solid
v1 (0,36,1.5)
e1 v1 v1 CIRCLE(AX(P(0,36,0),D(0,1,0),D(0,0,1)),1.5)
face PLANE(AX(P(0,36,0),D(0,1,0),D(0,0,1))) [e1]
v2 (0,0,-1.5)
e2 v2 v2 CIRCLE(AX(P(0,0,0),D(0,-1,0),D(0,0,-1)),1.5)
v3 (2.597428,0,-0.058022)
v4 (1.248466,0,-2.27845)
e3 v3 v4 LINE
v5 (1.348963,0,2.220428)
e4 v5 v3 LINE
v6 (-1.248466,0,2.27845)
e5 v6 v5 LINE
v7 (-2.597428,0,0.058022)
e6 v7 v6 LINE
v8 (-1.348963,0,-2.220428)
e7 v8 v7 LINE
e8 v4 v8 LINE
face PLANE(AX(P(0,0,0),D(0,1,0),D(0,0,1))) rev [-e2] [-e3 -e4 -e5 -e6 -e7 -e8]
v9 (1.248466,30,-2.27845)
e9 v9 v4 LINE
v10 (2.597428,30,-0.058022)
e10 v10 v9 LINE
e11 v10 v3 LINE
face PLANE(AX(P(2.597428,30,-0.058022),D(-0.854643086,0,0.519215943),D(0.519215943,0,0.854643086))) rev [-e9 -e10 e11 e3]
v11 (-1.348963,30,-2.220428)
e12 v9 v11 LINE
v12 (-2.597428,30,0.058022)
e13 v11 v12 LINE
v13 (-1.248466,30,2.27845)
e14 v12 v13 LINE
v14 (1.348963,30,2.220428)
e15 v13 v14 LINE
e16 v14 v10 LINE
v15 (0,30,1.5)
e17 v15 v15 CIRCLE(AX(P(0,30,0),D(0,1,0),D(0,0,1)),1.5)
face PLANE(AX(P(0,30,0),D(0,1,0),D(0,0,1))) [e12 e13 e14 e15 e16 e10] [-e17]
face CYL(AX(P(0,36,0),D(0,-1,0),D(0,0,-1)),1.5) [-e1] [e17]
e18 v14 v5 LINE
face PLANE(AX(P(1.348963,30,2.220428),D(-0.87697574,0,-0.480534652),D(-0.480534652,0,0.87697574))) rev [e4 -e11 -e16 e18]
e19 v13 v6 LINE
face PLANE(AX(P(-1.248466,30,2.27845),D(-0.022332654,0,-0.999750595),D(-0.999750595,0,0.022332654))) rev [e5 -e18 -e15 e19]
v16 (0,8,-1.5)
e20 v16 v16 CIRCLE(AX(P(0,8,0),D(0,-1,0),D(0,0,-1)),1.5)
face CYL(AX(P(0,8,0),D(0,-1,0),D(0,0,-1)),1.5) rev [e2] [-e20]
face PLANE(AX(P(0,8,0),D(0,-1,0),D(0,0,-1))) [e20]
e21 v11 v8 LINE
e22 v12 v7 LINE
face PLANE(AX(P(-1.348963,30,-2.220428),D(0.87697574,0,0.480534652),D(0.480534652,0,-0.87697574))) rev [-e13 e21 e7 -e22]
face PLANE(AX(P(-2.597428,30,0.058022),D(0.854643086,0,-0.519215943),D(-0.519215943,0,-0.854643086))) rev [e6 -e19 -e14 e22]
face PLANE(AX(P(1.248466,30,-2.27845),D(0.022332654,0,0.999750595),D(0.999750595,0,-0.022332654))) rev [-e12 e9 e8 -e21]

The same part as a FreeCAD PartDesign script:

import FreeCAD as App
import Part
import Sketcher

V = App.Vector

doc = App.newDocument("Part")
body = doc.addObject("PartDesign::Body", "Body")

# Sketch on XZ plane
sketch1 = body.newObject("Sketcher::SketchObject", "Sketch")
sketch1.AttachmentSupport = (doc.getObject("XZ_Plane"), [""])
sketch1.MapMode = "FlatFace"
sketch1.addGeometry([
    Part.LineSegment(V(1.248466, -2.27845, 0), V(-1.348963, -2.220428, 0)),  # 0
    Part.LineSegment(V(-1.348963, -2.220428, 0), V(-2.597428, 0.058022, 0)),  # 1
    Part.LineSegment(V(-2.597428, 0.058022, 0), V(-1.248466, 2.27845, 0)),  # 2
    Part.LineSegment(V(-1.248466, 2.27845, 0), V(1.348963, 2.220428, 0)),  # 3
    Part.LineSegment(V(1.348963, 2.220428, 0), V(2.597428, -0.058022, 0)),  # 4
    Part.LineSegment(V(2.597428, -0.058022, 0), V(1.248466, -2.27845, 0)),  # 5
    Part.Circle(V(0, 0, 0), V(0, 0, 1), 1.5),  # 6
], False)
sketch1.addConstraint([
    Sketcher.Constraint("Coincident", 0, 2, 1, 1),
    Sketcher.Constraint("Coincident", 1, 2, 2, 1),
    Sketcher.Constraint("Coincident", 2, 2, 3, 1),
    Sketcher.Constraint("Coincident", 3, 2, 4, 1),
    Sketcher.Constraint("Coincident", 4, 2, 5, 1),
    Sketcher.Constraint("Coincident", 5, 2, 0, 1),
    Sketcher.Constraint("Coincident", 6, 3, -1, 1),
    Sketcher.Constraint("Symmetric", 0, 2, 3, 2, -1, 1),
    Sketcher.Constraint("Symmetric", 1, 2, 4, 2, -1, 1),
    Sketcher.Constraint("Symmetric", 2, 2, 5, 2, -1, 1),
    Sketcher.Constraint("Equal", 0, 1),
    Sketcher.Constraint("Equal", 1, 2),
    Sketcher.Constraint("Diameter", 6, 3.0),
    Sketcher.Constraint("DistanceX", 1, 2, -1, 1, 2.597428),
    Sketcher.Constraint("DistanceY", -1, 1, 1, 2, 0.058022),
    Sketcher.Constraint("DistanceY", -1, 1, 2, 2, 2.27845),
    Sketcher.Constraint("DistanceY", 0, 2, 1, 2, 2.27845),
])
pad1 = body.newObject("PartDesign::Pad", "Pad")
pad1.Profile = sketch1
pad1.Length = 30
pad1.Reversed = True

# Sketch on XZ plane
sketch2 = body.newObject("Sketcher::SketchObject", "Sketch001")
sketch2.AttachmentSupport = (doc.getObject("XZ_Plane"), [""])
sketch2.MapMode = "FlatFace"
sketch2.addGeometry(Part.Circle(V(0, 0, 0), V(0, 0, 1), 1.5), False)
sketch2.addConstraint([
    Sketcher.Constraint("Coincident", 0, 3, -1, 1),
    Sketcher.Constraint("Diameter", 0, 3.0),
])
pad2 = body.newObject("PartDesign::Pad", "Pad001")
pad2.Profile = sketch2
pad2.Length = 36
pad2.Reversed = True

# Sketch on XZ plane
sketch3 = body.newObject("Sketcher::SketchObject", "Sketch002")
sketch3.AttachmentSupport = (doc.getObject("XZ_Plane"), [""])
sketch3.MapMode = "FlatFace"
sketch3.addGeometry(Part.Circle(V(0, 0, 0), V(0, 0, 1), 1.5), False)
sketch3.addConstraint([
    Sketcher.Constraint("Coincident", 0, 3, -1, 1),
    Sketcher.Constraint("Diameter", 0, 3.0),
])
pocket1 = body.newObject("PartDesign::Pocket", "Pocket")
pocket1.Profile = sketch3
pocket1.Length = 8

doc.recompute()
